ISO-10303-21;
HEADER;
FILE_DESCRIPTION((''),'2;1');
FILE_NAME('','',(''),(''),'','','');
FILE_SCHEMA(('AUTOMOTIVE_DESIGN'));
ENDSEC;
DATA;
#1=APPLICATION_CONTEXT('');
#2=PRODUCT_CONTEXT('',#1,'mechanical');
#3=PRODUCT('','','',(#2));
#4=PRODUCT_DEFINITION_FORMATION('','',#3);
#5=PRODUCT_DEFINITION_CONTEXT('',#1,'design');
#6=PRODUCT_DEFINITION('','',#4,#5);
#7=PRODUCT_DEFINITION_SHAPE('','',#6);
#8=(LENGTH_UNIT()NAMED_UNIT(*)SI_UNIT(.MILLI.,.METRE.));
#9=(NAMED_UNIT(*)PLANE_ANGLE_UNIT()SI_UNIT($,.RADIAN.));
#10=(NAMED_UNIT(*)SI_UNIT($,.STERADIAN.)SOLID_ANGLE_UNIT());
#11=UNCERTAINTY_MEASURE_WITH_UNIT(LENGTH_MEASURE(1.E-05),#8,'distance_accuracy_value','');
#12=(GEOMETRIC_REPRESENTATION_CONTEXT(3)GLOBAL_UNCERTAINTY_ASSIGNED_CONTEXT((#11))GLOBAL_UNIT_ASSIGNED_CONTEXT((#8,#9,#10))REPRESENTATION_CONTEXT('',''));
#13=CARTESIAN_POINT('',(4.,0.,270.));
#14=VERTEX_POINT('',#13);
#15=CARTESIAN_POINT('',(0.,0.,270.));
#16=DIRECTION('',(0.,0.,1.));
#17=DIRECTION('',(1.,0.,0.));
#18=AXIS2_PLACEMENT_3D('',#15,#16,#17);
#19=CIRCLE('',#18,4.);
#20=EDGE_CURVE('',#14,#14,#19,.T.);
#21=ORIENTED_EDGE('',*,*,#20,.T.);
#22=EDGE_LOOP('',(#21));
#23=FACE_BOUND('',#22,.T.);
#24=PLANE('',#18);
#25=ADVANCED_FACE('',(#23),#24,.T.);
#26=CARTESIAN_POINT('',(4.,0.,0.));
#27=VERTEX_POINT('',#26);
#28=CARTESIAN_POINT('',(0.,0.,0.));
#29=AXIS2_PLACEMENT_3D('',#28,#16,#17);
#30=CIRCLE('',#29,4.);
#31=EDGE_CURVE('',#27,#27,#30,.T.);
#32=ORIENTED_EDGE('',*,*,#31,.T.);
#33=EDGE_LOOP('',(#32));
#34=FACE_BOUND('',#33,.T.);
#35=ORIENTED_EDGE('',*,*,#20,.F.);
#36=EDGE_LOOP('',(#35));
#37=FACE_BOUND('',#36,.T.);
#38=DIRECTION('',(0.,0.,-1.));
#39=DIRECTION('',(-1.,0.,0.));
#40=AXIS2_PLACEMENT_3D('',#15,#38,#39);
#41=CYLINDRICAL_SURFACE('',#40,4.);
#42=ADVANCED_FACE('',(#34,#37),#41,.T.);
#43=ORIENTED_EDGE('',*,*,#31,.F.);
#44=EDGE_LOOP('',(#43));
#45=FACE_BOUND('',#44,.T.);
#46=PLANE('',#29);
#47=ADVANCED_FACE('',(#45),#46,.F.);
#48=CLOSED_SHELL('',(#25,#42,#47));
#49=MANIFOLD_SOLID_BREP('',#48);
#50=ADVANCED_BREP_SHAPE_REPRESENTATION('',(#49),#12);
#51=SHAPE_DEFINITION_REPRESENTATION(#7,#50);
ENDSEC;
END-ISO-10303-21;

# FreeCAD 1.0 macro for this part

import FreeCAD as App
import Part
import Sketcher
from FreeCAD import Vector

doc = App.newDocument("Part")
params = doc.addObject("Spreadsheet::Sheet", "Params")
for row, (alias, value) in enumerate([
    ("sketch1_diameter", "8 mm"),
    ("pad1_length", "270 mm"),
], start=1):
    params.set(f"A{row}", alias)
    params.set(f"B{row}", "=" + value)
    params.setAlias(f"B{row}", alias)

body = doc.addObject("PartDesign::Body", "Body")

# Sketch on XY plane
sketch1 = body.newObject("Sketcher::SketchObject", "Sketch")
sketch1.AttachmentSupport = (doc.getObject("XY_Plane"), [""])
sketch1.MapMode = "FlatFace"
sketch1.addGeometry(Part.Circle(Vector(0, 0, 0), Vector(0, 0, 1), 4), False)
sketch1.addConstraint([
    Sketcher.Constraint("Coincident", 0, 3, -1, 1),
    Sketcher.Constraint("Diameter", 0, 8.0),
])
sketch1.setExpression("Constraints[1]", "Params.sketch1_diameter")
pad1 = body.newObject("PartDesign::Pad", "Pad")
pad1.Profile = sketch1
pad1.setExpression("Length", "Params.pad1_length")

doc.recompute()
